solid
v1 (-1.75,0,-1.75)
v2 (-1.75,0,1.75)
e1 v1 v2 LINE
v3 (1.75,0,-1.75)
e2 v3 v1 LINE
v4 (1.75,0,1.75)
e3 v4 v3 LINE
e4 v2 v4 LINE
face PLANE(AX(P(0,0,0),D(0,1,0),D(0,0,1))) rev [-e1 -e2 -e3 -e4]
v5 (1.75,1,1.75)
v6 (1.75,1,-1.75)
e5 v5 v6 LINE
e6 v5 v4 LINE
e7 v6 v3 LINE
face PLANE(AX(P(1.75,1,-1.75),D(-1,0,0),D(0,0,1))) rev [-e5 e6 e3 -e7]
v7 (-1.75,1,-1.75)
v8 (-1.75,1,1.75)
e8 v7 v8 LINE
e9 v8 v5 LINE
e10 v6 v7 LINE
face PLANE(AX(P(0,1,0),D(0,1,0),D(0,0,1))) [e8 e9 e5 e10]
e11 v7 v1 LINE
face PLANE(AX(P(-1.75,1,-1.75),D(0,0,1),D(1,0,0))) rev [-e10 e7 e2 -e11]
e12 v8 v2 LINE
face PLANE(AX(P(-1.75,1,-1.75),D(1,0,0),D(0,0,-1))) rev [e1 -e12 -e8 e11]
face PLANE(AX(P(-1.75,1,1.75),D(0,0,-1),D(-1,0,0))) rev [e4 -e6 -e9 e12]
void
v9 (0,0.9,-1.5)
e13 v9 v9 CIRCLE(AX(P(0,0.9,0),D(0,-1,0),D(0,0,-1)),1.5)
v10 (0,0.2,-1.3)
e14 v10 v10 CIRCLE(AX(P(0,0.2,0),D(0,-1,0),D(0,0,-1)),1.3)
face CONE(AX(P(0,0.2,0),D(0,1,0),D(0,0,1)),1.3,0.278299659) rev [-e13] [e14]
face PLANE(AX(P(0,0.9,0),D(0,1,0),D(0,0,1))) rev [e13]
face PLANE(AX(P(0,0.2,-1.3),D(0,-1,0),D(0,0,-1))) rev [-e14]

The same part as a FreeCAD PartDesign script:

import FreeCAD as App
import Part
import Sketcher


def add_polygon(sketch, points):
    """Adds a closed chain of lines whose ends are joined by coincident constraints."""
    first, n = sketch.GeometryCount, len(points)
    for a, b in zip(points, points[1:] + points[:1]):
        sketch.addGeometry(Part.LineSegment(App.Vector(*a, 0), App.Vector(*b, 0)), False)
    for i in range(n):
        sketch.addConstraint(Sketcher.Constraint("Coincident", first + i, 2, first + (i + 1) % n, 1))

doc = App.newDocument("Part")
body = doc.addObject("PartDesign::Body", "Body")

# Sketch on XZ plane
sketch1 = body.newObject("Sketcher::SketchObject", "Sketch")
sketch1.AttachmentSupport = (doc.getObject("XZ_Plane"), [""])
sketch1.MapMode = "FlatFace"
add_polygon(sketch1, [(-1.8, -1.8), (-1.8, 1.8), (1.8, 1.8), (1.8, -1.8)])  # lines 0-3
sketch1.addConstraint([
    Sketcher.Constraint("Vertical", 0),
    Sketcher.Constraint("Horizontal", 1),
    Sketcher.Constraint("Vertical", 2),
    Sketcher.Constraint("Horizontal", 3),
    Sketcher.Constraint("Symmetric", 0, 2, 2, 2, -1, 1),
    Sketcher.Constraint("Equal", 3, 0),
    Sketcher.Constraint("DistanceX", 1, 1, 1, 2, 3.5),
])
pad1 = body.newObject("PartDesign::Pad", "Pad")
pad1.Profile = sketch1
pad1.Length = 1
pad1.Reversed = True

# Sketch on YZ plane
sketch2 = body.newObject("Sketcher::SketchObject", "Sketch001")
sketch2.AttachmentSupport = (doc.getObject("YZ_Plane"), [""])
sketch2.MapMode = "FlatFace"
add_polygon(sketch2, [(0.9, -1.5), (0.9, 0), (0.2, 0), (0.2, -1.3)])  # lines 0-3
sketch2.addConstraint([
    Sketcher.Constraint("Vertical", 0),
    Sketcher.Constraint("Horizontal", 1),
    Sketcher.Constraint("Vertical", 2),
    Sketcher.Constraint("PointOnObject", 0, 2, -1),
    Sketcher.Constraint("DistanceX", 1, 2, 1, 1, 0.7),
    Sketcher.Constraint("DistanceY", 0, 1, 0, 2, 1.5),
    Sketcher.Constraint("DistanceY", 2, 2, 2, 1, 1.3),
    Sketcher.Constraint("DistanceX", -1, 1, 0, 2, 0.9),
])
groove = body.newObject("PartDesign::Groove", "Groove")
groove.Profile = sketch2
groove.ReferenceAxis = (sketch2, ["H_Axis"])
groove.Angle = 360

doc.recompute()
